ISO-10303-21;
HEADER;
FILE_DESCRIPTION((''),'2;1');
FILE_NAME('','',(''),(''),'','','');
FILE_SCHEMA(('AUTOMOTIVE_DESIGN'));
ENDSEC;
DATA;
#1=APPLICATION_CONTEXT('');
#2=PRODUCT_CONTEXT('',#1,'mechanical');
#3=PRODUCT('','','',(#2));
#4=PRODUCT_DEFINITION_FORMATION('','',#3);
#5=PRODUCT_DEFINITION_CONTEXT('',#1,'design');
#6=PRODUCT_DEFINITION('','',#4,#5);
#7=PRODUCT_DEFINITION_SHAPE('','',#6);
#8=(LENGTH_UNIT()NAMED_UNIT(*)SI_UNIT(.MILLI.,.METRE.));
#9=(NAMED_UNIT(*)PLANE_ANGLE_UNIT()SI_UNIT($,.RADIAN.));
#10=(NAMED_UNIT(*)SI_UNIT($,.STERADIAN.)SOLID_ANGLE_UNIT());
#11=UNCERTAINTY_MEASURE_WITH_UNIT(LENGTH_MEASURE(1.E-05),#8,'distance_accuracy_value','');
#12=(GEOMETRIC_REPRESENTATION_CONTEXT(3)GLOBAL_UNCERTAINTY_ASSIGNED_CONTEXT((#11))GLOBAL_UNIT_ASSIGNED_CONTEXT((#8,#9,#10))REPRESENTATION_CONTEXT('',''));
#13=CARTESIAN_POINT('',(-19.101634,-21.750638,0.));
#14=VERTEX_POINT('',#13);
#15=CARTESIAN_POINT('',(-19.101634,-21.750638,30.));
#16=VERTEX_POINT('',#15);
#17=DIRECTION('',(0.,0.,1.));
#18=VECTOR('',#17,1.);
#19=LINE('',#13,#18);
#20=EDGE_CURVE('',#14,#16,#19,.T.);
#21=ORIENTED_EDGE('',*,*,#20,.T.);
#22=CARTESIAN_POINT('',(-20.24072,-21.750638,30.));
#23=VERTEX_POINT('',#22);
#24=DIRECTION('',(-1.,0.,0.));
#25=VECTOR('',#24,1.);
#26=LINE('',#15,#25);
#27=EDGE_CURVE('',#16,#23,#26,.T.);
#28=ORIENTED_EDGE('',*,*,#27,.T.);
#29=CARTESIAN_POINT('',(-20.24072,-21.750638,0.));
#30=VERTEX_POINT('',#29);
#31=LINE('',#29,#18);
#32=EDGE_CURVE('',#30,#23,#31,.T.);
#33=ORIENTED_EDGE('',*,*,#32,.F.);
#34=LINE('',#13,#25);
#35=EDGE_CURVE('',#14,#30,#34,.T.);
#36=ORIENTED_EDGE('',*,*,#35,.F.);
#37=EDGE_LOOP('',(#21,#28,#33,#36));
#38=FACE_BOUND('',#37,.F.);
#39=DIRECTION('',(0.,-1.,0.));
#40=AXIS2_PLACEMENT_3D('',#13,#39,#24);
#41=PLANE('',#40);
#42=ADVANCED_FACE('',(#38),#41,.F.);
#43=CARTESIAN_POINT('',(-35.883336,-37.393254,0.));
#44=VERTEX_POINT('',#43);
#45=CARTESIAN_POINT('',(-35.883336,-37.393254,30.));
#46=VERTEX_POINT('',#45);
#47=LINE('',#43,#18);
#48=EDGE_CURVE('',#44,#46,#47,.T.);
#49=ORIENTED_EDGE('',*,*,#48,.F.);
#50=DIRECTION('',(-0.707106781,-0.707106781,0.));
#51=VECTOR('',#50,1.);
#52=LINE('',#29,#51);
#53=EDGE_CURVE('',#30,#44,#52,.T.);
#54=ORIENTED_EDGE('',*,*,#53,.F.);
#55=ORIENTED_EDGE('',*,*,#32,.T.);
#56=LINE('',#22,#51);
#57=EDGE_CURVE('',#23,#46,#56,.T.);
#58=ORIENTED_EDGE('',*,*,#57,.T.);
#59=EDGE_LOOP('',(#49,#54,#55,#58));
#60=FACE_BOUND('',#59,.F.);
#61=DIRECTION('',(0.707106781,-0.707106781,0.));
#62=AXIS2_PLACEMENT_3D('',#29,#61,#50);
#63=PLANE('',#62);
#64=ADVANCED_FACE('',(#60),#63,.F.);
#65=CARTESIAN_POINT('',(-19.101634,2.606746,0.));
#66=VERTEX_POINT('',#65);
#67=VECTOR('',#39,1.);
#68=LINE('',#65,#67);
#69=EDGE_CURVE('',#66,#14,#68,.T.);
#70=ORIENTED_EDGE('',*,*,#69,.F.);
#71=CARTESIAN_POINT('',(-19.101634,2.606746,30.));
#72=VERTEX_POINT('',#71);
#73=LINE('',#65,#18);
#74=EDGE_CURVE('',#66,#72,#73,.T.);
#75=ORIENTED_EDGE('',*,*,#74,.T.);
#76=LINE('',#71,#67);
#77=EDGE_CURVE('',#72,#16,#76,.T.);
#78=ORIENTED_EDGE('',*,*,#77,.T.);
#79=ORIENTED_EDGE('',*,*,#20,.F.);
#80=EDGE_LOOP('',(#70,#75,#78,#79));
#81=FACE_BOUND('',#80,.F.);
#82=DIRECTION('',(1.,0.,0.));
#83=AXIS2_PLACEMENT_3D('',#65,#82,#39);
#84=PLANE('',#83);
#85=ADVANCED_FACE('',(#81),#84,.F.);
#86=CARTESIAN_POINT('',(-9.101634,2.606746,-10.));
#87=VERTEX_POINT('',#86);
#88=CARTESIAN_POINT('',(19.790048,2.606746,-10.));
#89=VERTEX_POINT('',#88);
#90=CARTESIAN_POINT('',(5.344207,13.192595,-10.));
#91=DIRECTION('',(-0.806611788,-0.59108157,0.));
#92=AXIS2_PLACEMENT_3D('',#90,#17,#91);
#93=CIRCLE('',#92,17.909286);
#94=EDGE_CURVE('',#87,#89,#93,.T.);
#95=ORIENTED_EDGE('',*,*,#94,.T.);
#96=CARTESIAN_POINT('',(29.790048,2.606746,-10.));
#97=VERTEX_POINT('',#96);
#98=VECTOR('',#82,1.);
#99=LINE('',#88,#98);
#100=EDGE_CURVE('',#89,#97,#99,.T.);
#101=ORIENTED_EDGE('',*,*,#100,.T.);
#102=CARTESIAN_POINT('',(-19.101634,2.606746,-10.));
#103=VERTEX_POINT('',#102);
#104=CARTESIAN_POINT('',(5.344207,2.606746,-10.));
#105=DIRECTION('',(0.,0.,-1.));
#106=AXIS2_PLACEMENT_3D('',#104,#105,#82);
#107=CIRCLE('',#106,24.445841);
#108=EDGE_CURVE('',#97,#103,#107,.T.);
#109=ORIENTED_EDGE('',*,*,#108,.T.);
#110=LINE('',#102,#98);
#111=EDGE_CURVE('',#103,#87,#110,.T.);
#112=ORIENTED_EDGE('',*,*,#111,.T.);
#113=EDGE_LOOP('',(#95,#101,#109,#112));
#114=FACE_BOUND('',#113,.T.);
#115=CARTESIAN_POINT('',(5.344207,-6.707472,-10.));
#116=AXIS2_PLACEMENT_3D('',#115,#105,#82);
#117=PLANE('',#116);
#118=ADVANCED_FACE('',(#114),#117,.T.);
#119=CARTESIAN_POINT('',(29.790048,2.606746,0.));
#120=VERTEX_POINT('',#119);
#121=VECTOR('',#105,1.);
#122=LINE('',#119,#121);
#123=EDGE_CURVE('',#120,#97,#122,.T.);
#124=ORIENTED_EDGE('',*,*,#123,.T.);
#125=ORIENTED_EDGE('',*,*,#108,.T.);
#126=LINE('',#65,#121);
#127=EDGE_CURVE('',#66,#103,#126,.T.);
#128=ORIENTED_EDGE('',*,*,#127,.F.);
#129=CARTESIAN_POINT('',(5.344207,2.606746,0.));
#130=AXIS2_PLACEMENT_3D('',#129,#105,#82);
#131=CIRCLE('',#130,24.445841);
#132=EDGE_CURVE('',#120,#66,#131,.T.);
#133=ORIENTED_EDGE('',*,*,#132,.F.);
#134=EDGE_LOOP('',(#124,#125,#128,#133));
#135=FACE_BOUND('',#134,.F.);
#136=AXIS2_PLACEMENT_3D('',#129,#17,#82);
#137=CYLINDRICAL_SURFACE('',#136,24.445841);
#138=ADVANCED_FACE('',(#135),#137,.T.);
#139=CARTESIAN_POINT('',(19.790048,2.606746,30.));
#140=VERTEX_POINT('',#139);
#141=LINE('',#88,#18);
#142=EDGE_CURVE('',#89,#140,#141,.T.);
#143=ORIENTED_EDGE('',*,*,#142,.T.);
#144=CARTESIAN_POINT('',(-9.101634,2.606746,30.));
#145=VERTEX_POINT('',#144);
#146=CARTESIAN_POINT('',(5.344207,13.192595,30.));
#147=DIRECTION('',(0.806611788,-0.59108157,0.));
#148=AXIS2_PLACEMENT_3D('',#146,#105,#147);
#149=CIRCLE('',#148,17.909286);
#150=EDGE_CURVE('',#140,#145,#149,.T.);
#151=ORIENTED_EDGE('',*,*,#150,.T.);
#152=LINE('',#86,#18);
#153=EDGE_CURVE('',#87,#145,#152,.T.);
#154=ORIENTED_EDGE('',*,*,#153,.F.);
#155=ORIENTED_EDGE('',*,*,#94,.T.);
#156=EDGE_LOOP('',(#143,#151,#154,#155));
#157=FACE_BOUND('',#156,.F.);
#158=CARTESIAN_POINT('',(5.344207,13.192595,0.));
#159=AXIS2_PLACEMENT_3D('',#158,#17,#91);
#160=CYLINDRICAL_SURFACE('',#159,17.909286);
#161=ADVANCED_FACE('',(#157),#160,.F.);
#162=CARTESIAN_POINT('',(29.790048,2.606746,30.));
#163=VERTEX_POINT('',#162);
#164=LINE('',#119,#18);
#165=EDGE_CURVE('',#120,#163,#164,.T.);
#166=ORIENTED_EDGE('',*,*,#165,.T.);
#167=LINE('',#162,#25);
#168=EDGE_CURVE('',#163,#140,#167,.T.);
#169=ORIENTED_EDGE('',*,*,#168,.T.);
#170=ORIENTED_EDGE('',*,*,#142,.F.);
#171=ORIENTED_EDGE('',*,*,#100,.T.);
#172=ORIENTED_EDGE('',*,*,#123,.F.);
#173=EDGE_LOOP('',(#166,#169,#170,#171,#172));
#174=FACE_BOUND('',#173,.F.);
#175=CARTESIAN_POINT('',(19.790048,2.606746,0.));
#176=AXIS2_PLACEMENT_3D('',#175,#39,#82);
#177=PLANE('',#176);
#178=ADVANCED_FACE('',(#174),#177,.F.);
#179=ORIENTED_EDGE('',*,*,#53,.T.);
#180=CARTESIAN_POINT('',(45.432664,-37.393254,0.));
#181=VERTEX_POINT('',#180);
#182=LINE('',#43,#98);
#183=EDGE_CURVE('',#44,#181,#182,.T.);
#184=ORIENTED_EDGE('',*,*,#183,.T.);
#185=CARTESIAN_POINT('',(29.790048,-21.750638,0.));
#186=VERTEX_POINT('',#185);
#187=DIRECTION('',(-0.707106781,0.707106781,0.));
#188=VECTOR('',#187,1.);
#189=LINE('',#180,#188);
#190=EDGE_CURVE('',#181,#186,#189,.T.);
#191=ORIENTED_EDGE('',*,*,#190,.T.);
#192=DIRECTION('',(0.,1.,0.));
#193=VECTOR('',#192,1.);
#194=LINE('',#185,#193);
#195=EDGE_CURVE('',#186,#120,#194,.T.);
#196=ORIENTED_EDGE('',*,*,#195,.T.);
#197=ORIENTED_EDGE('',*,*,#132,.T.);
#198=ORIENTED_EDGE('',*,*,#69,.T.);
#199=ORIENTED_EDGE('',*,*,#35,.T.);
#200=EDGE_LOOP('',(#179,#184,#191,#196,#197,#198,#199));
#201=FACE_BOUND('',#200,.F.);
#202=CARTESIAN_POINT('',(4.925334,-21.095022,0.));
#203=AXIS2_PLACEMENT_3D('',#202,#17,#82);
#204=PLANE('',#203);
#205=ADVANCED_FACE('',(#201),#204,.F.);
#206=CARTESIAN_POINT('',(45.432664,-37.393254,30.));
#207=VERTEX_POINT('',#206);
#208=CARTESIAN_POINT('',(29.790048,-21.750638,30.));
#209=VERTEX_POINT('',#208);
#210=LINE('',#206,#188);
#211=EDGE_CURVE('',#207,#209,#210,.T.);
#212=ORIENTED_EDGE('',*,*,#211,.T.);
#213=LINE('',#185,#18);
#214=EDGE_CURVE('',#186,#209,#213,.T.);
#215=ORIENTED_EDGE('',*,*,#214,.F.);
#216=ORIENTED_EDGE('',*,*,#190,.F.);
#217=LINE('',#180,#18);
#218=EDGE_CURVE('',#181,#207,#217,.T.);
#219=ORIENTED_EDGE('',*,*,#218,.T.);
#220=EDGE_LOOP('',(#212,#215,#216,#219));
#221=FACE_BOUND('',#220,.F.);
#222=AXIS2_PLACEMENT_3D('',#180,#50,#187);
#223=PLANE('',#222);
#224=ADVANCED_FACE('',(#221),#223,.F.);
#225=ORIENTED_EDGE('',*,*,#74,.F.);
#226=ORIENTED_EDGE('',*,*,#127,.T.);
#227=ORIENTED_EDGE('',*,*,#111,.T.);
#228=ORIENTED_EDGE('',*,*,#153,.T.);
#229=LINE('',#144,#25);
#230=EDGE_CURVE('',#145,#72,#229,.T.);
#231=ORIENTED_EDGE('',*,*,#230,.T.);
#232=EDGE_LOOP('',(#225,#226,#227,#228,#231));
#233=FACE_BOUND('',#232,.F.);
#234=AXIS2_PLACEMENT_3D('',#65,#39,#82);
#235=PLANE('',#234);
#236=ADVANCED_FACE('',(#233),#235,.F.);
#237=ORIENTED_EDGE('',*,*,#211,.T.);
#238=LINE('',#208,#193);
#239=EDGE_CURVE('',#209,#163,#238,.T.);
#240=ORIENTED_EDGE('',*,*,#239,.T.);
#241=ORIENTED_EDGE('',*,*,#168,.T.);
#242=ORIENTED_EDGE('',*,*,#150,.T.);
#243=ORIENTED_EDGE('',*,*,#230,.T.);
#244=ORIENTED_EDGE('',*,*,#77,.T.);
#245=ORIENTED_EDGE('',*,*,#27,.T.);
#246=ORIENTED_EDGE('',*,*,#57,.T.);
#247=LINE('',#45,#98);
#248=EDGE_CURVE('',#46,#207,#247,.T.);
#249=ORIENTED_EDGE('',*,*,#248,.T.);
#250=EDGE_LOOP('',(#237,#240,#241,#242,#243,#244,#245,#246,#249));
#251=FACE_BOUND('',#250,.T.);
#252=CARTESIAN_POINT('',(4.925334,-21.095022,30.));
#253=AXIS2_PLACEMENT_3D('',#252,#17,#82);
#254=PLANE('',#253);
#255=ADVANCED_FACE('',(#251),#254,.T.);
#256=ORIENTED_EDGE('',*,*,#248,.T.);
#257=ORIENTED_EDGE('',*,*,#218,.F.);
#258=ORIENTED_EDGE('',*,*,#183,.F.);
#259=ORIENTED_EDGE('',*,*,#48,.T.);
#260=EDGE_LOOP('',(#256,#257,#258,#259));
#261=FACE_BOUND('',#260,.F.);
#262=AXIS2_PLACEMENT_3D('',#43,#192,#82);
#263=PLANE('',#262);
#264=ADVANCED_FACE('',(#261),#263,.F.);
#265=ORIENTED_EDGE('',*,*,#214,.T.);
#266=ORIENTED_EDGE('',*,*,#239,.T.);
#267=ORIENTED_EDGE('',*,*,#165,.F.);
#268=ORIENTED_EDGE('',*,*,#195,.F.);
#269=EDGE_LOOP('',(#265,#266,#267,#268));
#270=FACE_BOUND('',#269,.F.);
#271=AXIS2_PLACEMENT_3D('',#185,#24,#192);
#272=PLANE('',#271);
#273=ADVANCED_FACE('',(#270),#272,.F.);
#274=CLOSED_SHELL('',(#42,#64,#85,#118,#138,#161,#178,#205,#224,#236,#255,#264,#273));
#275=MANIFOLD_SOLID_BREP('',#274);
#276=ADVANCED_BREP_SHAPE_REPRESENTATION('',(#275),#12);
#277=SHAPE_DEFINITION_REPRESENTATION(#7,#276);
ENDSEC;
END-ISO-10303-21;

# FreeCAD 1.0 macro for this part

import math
import FreeCAD as App
import Part
import Sketcher

doc = App.newDocument("Part")
body = doc.addObject("PartDesign::Body", "Body")

# Sketch on XY plane
sketch1 = doc.addObject("Sketcher::SketchObject", "Sketch")
body.addObject(sketch1)
sketch1.AttachmentSupport = (doc.XY_Plane, [""])
sketch1.MapMode = "FlatFace"
sketch1.addGeometry([
    Part.LineSegment(App.Vector(-20.2, -21.8, 0), App.Vector(-35.9, -37.4, 0)),  # 0
    Part.LineSegment(App.Vector(-35.9, -37.4, 0), App.Vector(45.4, -37.4, 0)),  # 1
    Part.LineSegment(App.Vector(45.4, -37.4, 0), App.Vector(29.8, -21.8, 0)),  # 2
    Part.LineSegment(App.Vector(29.8, -21.8, 0), App.Vector(29.8, 2.6, 0)),  # 3
    Part.LineSegment(App.Vector(29.8, 2.6, 0), App.Vector(19.8, 2.6, 0)),  # 4
    Part.ArcOfCircle(Part.Circle(App.Vector(5.3, 13.2, 0), App.Vector(0, 0, 1), 17.9), math.radians(-144), math.radians(-36)),  # 5
    Part.LineSegment(App.Vector(-9.1, 2.6, 0), App.Vector(-19.1, 2.6, 0)),  # 6
    Part.LineSegment(App.Vector(-19.1, 2.6, 0), App.Vector(-19.1, -21.8, 0)),  # 7
    Part.LineSegment(App.Vector(-19.1, -21.8, 0), App.Vector(-20.2, -21.8, 0)),  # 8
], False)
sketch1.addConstraint([
    Sketcher.Constraint("Coincident", 0, 2, 1, 1),
    Sketcher.Constraint("Coincident", 1, 2, 2, 1),
    Sketcher.Constraint("Coincident", 2, 2, 3, 1),
    Sketcher.Constraint("Coincident", 3, 2, 4, 1),
    Sketcher.Constraint("Coincident", 4, 2, 5, 2),
    Sketcher.Constraint("Coincident", 5, 1, 6, 1),
    Sketcher.Constraint("Coincident", 6, 2, 7, 1),
    Sketcher.Constraint("Coincident", 7, 2, 8, 1),
    Sketcher.Constraint("Coincident", 8, 2, 0, 1),
    Sketcher.Constraint("Horizontal", 1),
    Sketcher.Constraint("Vertical", 3),
    Sketcher.Constraint("Horizontal", 4),
    Sketcher.Constraint("Horizontal", 6),
    Sketcher.Constraint("Vertical", 7),
    Sketcher.Constraint("Horizontal", 8),
    Sketcher.Constraint("Perpendicular", 0, 2),
    Sketcher.Constraint("Horizontal", 4, 2, 5, 1),
    Sketcher.Constraint("Horizontal", 2, 2, 7, 2),
    Sketcher.Constraint("Equal", 4, 6),
    Sketcher.Constraint("Equal", 0, 2),
    Sketcher.Constraint("DistanceX", 4, 2, 4, 1, 10.0),
    Sketcher.Constraint("DistanceY", 1, 2, 3, 2, 40.0),
    Sketcher.Constraint("DistanceX", 1, 1, 1, 2, 81.316),
    Sketcher.Constraint("Distance", 0, 22.122),
    Sketcher.Constraint("Radius", 5, 17.909286),
    Sketcher.Constraint("DistanceX", 0, 2, 5, 1, 26.781702),
    Sketcher.Constraint("DistanceX", 8, 2, -1, 1, 20.24072),
    Sketcher.Constraint("DistanceY", -1, 1, 5, 3, 13.192595),
])
pad1 = doc.addObject("PartDesign::Pad", "Pad")
body.addObject(pad1)
pad1.Profile = sketch1
pad1.Length = 30

# Sketch on XY plane
sketch2 = doc.addObject("Sketcher::SketchObject", "Sketch001")
body.addObject(sketch2)
sketch2.AttachmentSupport = (doc.XY_Plane, [""])
sketch2.MapMode = "FlatFace"
sketch2.addGeometry([
    Part.LineSegment(App.Vector(20, 3, 0), App.Vector(30, 3, 0)),
    Part.ArcOfCircle(Part.Circle(App.Vector(5, 3, 0), App.Vector(0, 0, 1), 24), math.radians(180), math.radians(360)),
    Part.LineSegment(App.Vector(-19, 3, 0), App.Vector(-9, 3, 0)),
    Part.ArcOfCircle(Part.Circle(App.Vector(5, 13, 0), App.Vector(0, 0, 1), 18), math.radians(-144), math.radians(-36)),
], False)
sketch2.addConstraint([
    Sketcher.Constraint("Coincident", 0, 2, 1, 2),
    Sketcher.Constraint("Coincident", 1, 1, 2, 1),
    Sketcher.Constraint("Coincident", 2, 2, 3, 1),
    Sketcher.Constraint("Coincident", 3, 2, 0, 1),
    Sketcher.Constraint("Horizontal", 0),
    Sketcher.Constraint("Horizontal", 2),
    Sketcher.Constraint("Horizontal", 1, 3, 0, 2),
    Sketcher.Constraint("Horizontal", 0, 2, 1, 1),
    Sketcher.Constraint("Vertical", 1, 3, 3, 3),
    Sketcher.Constraint("DistanceX", 0, 1, 0, 2, 10.0),
    Sketcher.Constraint("Radius", 1, 24.445841),
    Sketcher.Constraint("Radius", 3, 17.909286),
    Sketcher.Constraint("DistanceX", -1, 1, 3, 2, 19.790048),
    Sketcher.Constraint("DistanceY", -1, 1, 1, 3, 2.606746),
])
pad2 = doc.addObject("PartDesign::Pad", "Pad001")
body.addObject(pad2)
pad2.Profile = sketch2
pad2.Length = 10
pad2.Reversed = True

doc.recompute()
